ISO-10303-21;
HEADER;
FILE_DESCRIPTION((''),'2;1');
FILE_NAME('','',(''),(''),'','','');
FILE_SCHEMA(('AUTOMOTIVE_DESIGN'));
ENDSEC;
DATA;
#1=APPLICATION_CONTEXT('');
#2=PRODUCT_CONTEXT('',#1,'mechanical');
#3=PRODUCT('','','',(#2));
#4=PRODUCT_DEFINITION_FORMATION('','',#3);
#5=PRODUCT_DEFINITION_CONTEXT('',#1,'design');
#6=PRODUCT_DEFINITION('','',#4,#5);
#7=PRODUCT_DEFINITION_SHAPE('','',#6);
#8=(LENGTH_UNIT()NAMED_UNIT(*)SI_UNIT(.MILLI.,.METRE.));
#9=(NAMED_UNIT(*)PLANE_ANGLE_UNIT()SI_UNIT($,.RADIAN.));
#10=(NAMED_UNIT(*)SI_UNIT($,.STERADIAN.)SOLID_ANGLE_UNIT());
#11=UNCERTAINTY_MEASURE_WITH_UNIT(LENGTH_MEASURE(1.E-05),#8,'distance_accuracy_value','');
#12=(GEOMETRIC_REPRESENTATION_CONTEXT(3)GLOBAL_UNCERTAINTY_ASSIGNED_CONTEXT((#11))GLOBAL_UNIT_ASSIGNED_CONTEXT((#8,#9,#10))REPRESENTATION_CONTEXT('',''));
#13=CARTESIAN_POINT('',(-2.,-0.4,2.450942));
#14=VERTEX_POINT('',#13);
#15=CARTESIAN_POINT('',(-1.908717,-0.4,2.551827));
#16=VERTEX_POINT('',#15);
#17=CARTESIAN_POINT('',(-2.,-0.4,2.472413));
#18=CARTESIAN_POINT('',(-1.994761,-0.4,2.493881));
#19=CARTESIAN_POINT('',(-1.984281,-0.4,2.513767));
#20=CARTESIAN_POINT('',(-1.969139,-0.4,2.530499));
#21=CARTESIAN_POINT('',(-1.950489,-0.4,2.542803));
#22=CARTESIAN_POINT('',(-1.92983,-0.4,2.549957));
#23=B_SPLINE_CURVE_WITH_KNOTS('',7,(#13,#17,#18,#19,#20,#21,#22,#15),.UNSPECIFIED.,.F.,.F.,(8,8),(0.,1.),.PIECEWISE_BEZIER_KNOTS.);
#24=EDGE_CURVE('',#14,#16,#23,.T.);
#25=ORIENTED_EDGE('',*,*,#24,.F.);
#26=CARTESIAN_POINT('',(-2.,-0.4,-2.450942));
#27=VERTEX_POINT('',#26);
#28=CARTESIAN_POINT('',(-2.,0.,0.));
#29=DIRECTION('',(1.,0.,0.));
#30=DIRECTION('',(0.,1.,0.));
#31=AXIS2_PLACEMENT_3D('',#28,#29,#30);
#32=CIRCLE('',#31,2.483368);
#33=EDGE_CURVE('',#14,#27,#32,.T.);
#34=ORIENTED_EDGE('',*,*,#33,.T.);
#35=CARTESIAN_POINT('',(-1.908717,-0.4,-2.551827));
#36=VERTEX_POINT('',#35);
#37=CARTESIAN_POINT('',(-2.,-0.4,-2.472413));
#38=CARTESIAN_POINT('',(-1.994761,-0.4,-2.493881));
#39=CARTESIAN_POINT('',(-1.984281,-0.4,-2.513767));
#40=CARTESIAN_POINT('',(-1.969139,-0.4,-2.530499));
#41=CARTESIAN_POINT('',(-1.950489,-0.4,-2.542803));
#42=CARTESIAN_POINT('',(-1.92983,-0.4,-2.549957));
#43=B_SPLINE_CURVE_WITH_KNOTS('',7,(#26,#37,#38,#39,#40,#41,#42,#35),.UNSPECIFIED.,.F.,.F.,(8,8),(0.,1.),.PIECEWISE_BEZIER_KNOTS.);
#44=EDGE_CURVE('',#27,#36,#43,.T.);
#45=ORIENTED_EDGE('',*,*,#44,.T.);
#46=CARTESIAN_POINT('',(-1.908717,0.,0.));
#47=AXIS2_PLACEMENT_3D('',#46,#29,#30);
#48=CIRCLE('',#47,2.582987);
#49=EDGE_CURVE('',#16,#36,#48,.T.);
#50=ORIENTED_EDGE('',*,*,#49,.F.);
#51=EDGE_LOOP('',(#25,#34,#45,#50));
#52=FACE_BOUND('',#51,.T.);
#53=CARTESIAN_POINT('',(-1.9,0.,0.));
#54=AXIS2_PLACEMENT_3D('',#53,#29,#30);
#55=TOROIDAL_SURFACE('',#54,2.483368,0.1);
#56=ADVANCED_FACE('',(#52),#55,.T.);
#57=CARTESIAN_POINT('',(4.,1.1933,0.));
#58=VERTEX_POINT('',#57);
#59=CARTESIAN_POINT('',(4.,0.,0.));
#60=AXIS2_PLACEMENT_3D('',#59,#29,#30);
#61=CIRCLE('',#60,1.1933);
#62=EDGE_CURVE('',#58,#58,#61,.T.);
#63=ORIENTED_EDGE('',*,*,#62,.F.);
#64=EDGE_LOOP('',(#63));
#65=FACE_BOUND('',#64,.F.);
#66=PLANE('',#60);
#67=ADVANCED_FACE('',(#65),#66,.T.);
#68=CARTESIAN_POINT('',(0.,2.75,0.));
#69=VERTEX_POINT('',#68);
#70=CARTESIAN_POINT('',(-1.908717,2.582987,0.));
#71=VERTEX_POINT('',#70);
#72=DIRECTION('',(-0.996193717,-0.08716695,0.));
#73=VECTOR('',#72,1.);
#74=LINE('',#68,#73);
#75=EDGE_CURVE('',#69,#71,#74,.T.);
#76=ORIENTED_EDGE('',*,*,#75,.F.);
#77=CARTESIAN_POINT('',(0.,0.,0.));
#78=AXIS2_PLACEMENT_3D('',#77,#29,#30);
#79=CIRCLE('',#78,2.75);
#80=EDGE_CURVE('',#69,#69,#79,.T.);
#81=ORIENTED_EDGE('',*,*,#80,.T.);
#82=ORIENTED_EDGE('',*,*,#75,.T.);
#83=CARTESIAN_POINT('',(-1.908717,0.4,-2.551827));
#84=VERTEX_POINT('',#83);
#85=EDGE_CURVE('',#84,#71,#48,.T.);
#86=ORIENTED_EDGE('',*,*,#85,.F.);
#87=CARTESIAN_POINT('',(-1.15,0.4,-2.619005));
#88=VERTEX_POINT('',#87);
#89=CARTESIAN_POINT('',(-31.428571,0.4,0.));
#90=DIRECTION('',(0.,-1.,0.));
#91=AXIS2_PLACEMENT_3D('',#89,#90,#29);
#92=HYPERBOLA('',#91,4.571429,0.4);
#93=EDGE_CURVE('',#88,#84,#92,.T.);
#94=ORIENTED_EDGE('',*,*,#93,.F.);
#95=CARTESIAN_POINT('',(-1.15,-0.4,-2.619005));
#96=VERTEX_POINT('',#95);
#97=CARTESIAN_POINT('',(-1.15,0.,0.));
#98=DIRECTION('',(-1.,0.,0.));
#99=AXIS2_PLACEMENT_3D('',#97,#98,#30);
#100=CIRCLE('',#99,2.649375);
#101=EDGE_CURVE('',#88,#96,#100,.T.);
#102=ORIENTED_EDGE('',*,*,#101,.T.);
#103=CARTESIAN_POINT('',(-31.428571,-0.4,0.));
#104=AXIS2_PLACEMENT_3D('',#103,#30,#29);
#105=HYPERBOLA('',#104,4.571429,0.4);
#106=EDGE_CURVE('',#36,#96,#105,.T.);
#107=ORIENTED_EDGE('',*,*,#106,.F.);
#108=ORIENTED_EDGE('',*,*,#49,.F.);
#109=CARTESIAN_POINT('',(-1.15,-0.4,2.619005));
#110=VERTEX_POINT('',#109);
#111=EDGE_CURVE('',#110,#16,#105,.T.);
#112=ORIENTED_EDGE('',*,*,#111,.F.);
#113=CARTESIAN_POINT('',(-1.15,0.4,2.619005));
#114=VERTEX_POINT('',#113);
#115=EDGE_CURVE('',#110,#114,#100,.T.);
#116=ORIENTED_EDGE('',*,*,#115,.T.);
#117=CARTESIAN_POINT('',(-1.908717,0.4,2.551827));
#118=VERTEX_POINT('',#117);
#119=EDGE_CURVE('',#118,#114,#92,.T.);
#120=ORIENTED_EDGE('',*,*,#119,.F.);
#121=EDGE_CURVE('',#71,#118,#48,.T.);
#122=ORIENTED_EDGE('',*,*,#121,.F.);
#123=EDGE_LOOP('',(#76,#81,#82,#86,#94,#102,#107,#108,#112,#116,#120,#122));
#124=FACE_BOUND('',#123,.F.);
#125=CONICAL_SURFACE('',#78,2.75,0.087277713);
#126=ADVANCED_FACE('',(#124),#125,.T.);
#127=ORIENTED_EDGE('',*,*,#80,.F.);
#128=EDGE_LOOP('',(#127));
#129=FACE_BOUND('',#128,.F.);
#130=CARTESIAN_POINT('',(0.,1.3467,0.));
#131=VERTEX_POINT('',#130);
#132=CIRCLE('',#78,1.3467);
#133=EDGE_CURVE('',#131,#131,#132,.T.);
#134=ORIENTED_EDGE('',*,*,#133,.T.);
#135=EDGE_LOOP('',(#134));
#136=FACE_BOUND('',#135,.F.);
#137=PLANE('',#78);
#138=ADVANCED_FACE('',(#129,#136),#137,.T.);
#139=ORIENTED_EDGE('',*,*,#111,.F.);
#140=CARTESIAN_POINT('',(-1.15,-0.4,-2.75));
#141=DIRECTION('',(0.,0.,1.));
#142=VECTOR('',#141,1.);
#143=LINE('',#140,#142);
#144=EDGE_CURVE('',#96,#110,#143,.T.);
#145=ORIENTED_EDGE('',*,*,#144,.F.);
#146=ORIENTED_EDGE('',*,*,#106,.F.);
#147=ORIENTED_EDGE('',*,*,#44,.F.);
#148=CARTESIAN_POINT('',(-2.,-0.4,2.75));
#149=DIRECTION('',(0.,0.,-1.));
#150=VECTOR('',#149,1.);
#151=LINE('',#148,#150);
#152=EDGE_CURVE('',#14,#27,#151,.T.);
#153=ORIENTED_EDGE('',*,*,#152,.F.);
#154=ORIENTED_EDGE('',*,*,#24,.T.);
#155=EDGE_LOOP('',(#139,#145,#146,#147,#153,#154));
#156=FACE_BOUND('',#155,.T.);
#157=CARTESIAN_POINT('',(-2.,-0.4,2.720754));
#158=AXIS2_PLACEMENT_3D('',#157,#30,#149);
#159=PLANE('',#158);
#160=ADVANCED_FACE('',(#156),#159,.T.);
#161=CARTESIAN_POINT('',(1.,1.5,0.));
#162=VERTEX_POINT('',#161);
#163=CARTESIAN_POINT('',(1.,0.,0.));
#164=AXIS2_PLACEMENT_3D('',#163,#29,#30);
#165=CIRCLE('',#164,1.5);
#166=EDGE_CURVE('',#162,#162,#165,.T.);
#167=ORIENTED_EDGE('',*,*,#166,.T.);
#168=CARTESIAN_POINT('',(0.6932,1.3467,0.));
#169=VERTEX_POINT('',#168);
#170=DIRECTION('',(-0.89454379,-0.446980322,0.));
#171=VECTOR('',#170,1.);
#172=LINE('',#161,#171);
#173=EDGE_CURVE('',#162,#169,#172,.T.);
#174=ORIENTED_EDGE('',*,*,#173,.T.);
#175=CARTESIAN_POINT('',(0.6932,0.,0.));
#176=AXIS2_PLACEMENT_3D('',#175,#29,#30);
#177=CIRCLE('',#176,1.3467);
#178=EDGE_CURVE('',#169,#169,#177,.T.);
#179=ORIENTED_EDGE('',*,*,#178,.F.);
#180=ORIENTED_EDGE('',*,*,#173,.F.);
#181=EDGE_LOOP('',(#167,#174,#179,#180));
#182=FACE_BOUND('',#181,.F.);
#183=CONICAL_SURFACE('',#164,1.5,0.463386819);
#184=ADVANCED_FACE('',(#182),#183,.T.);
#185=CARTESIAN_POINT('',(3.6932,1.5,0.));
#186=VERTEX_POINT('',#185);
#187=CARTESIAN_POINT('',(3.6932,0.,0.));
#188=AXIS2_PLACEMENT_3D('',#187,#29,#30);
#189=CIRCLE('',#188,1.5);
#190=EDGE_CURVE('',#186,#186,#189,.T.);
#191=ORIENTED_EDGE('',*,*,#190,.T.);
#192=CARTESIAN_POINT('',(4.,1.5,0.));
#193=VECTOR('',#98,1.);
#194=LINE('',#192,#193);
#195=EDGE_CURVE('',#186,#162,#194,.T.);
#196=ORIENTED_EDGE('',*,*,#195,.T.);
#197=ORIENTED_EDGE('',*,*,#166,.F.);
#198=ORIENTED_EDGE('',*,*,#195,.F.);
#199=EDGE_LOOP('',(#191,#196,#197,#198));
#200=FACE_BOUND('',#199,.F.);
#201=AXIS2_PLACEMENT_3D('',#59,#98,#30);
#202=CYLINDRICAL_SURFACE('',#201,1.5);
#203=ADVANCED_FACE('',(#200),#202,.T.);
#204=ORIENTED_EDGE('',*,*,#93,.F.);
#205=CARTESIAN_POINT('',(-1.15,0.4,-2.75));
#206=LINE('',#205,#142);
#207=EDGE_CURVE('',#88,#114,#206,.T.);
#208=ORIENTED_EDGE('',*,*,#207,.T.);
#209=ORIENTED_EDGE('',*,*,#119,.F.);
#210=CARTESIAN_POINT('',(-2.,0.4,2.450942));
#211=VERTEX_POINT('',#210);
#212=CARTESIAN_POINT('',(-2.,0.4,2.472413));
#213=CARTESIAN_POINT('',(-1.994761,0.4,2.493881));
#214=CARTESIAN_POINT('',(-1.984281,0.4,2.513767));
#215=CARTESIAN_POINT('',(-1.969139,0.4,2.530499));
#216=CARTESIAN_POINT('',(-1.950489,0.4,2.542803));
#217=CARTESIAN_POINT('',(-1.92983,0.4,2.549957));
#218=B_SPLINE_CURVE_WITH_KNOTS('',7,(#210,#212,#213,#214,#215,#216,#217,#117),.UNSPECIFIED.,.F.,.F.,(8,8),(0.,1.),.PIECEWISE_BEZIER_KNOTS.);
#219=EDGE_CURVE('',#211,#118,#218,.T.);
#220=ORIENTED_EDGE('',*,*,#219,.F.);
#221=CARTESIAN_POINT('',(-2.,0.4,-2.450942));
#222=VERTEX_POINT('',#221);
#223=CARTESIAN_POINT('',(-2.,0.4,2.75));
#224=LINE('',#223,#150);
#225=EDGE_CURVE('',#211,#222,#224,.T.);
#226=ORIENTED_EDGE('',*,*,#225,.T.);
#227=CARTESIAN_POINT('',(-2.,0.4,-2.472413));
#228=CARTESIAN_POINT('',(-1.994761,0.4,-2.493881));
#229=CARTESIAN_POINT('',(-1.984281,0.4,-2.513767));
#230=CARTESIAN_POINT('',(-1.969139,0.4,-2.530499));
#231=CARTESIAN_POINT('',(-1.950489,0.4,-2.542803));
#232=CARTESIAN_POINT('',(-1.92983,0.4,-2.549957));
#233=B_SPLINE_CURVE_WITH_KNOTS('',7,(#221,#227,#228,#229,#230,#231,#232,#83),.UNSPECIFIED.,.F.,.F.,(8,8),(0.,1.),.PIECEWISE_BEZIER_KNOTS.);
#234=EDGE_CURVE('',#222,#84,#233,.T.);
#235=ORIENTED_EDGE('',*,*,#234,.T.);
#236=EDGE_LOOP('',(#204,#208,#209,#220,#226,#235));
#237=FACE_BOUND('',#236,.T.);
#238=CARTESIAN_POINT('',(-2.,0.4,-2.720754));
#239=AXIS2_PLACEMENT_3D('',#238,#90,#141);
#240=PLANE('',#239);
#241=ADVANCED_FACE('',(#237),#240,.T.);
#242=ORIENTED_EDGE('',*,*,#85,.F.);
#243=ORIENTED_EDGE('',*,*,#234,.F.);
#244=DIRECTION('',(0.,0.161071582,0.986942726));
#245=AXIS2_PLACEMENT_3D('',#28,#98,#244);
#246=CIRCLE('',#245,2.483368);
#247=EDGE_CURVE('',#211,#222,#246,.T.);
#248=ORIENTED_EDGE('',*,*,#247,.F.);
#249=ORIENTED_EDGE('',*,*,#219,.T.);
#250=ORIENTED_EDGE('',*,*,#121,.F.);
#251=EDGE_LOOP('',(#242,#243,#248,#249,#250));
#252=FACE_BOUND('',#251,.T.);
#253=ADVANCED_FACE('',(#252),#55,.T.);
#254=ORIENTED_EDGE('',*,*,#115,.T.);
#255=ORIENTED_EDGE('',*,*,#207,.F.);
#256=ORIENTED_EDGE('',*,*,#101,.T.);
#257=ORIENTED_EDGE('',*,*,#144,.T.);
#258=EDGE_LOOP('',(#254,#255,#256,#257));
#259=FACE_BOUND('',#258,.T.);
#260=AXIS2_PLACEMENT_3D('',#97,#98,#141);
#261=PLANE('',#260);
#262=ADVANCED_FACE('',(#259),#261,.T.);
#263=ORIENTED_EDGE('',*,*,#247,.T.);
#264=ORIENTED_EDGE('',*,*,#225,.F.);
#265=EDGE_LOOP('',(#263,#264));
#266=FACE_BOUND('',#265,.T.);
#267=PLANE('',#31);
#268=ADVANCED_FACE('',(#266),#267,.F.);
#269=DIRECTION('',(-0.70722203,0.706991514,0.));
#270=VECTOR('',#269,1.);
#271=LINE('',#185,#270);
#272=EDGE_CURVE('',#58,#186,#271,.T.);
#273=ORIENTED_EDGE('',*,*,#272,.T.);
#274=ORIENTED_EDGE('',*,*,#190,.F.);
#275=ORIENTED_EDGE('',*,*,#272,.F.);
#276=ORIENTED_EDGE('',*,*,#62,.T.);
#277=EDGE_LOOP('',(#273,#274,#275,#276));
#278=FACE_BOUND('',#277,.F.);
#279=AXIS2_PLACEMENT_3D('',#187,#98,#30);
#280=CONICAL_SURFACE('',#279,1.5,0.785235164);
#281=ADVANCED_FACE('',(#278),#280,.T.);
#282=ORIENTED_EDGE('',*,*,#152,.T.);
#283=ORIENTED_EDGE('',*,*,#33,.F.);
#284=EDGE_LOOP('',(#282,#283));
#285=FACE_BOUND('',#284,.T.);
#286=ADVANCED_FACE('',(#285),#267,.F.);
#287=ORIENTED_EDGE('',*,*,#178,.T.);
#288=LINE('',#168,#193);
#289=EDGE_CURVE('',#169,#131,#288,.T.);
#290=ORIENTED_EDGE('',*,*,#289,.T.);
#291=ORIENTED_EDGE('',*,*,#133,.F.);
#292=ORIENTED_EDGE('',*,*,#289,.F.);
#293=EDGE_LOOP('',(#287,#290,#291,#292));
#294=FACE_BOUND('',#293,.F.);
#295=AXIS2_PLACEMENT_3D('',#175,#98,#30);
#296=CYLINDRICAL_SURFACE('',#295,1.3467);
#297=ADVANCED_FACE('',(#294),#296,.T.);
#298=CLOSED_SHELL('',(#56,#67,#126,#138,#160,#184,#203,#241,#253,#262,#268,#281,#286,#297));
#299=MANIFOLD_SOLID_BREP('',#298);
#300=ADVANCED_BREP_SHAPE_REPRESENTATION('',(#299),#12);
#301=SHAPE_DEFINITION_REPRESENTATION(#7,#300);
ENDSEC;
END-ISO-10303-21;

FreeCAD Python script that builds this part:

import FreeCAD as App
import Part
import Sketcher
Q = App.Units.Quantity


def edges_at(feature, points):
    """Names of the edges that pass closest to the given points."""
    edges = feature.Shape.Edges
    near = lambda p: min(range(len(edges)), key=lambda i: edges[i].distToShape(Part.Vertex(*p))[0])
    return sorted({f"Edge{near(p) + 1}" for p in points})

doc = App.newDocument("Part")
params = doc.addObject("Spreadsheet::Sheet", "Params")
for row, (alias, value) in enumerate([
    ("sketch1_width", "3 mm"),
    ("sketch1_height", "1.5 mm"),
    ("revolution_angle", "360 deg"),
    ("fillet_radius", "0.1 mm"),
    ("sketch2_width", "0.8 mm"),
    ("sketch2_height", "5.5 mm"),
    ("pocket1_length", "0.85 mm"),
    ("chamfer_size", "0.3067 mm"),
    ("chamfer_size2", "0.3068 mm"),
], start=1):
    params.set(f"A{row}", alias)
    params.set(f"B{row}", "=" + value)
    params.setAlias(f"B{row}", alias)

body = doc.addObject("PartDesign::Body", "Body")

sketch1 = body.newObject("Sketcher::SketchObject", "Sketch")
sketch1.AttachmentSupport = (doc.getObject("XY_Plane"), [""])
sketch1.MapMode = "FlatFace"
sketch1.addGeometry([
    Part.LineSegment(App.Vector(-2, 2.58, 0), App.Vector(-2, 0, 0)),
    Part.LineSegment(App.Vector(-2, 0, 0), App.Vector(4, 0, 0)),
    Part.LineSegment(App.Vector(4, 0, 0), App.Vector(4, 1.5, 0)),
    Part.LineSegment(App.Vector(4, 1.5, 0), App.Vector(1, 1.5, 0)),
    Part.LineSegment(App.Vector(1, 1.5, 0), App.Vector(0.69, 1.35, 0)),
    Part.LineSegment(App.Vector(0.69, 1.35, 0), App.Vector(0, 1.35, 0)),
    Part.LineSegment(App.Vector(0, 1.35, 0), App.Vector(0, 2.75, 0)),
    Part.LineSegment(App.Vector(0, 2.75, 0), App.Vector(-2, 2.58, 0)),
], False)
sketch1.addConstraint([
    Sketcher.Constraint("Coincident", 0, 2, 1, 1),
    Sketcher.Constraint("Coincident", 1, 2, 2, 1),
    Sketcher.Constraint("Coincident", 2, 2, 3, 1),
    Sketcher.Constraint("Coincident", 3, 2, 4, 1),
    Sketcher.Constraint("Coincident", 4, 2, 5, 1),
    Sketcher.Constraint("Coincident", 5, 2, 6, 1),
    Sketcher.Constraint("Coincident", 6, 2, 7, 1),
    Sketcher.Constraint("Coincident", 7, 2, 0, 1),
    Sketcher.Constraint("Vertical", 0),
    Sketcher.Constraint("Horizontal", 1),
    Sketcher.Constraint("Vertical", 2),
    Sketcher.Constraint("Horizontal", 3),
    Sketcher.Constraint("Horizontal", 5),
    Sketcher.Constraint("Vertical", 6),
    Sketcher.Constraint("PointOnObject", 0, 2, -1),
    Sketcher.Constraint("PointOnObject", 5, 2, -2),
    Sketcher.Constraint("DistanceX", 3, 2, 3, 1, 3.0),
    Sketcher.Constraint("DistanceX", 0, 2, -1, 1, 2.0),
    Sketcher.Constraint("DistanceX", -1, 1, 1, 2, 4.0),
    Sketcher.Constraint("Angle", 7, Q("-174.9994 deg")),
    Sketcher.Constraint("DistanceY", 2, 1, 2, 2, 1.5),
    Sketcher.Constraint("Angle", 4, Q("-153.45 deg")),
    Sketcher.Constraint("DistanceX", 4, 2, 3, 2, 0.3068),
    Sketcher.Constraint("DistanceY", 0, 2, 0, 1, 2.575),
])
sketch1.setExpression("Constraints[16]", "Params.sketch1_width")
sketch1.setExpression("Constraints[20]", "Params.sketch1_height")
revolution = body.newObject("PartDesign::Revolution", "Revolution")
revolution.Profile = sketch1
revolution.ReferenceAxis = (sketch1, ["H_Axis"])
revolution.setExpression("Angle", "Params.revolution_angle")
doc.recompute()

fillet = body.newObject("PartDesign::Fillet", "Fillet")
fillet.Base = (revolution, edges_at(revolution, [(-2, -2.575, 0)]))
fillet.setExpression("Radius", "Params.fillet_radius")

sketch2 = body.newObject("Sketcher::SketchObject", "Sketch001")
sketch2.AttachmentSupport = (doc.getObject("YZ_Plane"), [""])
sketch2.MapMode = "FlatFace"
sketch2.AttachmentOffset = App.Placement(App.Vector(0, 0, -2), App.Rotation())
sketch2.addGeometry([
    Part.LineSegment(App.Vector(-0.4, 2.8, 0), App.Vector(0.4, 2.8, 0)),
    Part.LineSegment(App.Vector(0.4, 2.8, 0), App.Vector(0.4, -2.8, 0)),
    Part.LineSegment(App.Vector(0.4, -2.8, 0), App.Vector(-0.4, -2.8, 0)),
    Part.LineSegment(App.Vector(-0.4, -2.8, 0), App.Vector(-0.4, 2.8, 0)),
], False)
sketch2.addConstraint([
    Sketcher.Constraint("Coincident", 0, 2, 1, 1),
    Sketcher.Constraint("Coincident", 1, 2, 2, 1),
    Sketcher.Constraint("Coincident", 2, 2, 3, 1),
    Sketcher.Constraint("Coincident", 3, 2, 0, 1),
    Sketcher.Constraint("Horizontal", 0),
    Sketcher.Constraint("Vertical", 1),
    Sketcher.Constraint("Horizontal", 2),
    Sketcher.Constraint("Vertical", 3),
    Sketcher.Constraint("Symmetric", 0, 2, 2, 2, -1, 1),
    Sketcher.Constraint("DistanceX", 0, 1, 0, 2, 0.8),
    Sketcher.Constraint("DistanceY", 1, 2, 1, 1, 5.5),
])
sketch2.setExpression("Constraints[9]", "Params.sketch2_width")
sketch2.setExpression("Constraints[10]", "Params.sketch2_height")
pocket1 = body.newObject("PartDesign::Pocket", "Pocket")
pocket1.Profile = sketch2
pocket1.setExpression("Length", "Params.pocket1_length")
pocket1.Reversed = True
doc.recompute()

chamfer = body.newObject("PartDesign::Chamfer", "Chamfer")
chamfer.Base = (pocket1, edges_at(pocket1, [(4, -1.5, 0)]))
chamfer.ChamferType = "Two distances"
chamfer.setExpression("Size", "Params.chamfer_size")
chamfer.setExpression("Size2", "Params.chamfer_size2")

doc.recompute()
